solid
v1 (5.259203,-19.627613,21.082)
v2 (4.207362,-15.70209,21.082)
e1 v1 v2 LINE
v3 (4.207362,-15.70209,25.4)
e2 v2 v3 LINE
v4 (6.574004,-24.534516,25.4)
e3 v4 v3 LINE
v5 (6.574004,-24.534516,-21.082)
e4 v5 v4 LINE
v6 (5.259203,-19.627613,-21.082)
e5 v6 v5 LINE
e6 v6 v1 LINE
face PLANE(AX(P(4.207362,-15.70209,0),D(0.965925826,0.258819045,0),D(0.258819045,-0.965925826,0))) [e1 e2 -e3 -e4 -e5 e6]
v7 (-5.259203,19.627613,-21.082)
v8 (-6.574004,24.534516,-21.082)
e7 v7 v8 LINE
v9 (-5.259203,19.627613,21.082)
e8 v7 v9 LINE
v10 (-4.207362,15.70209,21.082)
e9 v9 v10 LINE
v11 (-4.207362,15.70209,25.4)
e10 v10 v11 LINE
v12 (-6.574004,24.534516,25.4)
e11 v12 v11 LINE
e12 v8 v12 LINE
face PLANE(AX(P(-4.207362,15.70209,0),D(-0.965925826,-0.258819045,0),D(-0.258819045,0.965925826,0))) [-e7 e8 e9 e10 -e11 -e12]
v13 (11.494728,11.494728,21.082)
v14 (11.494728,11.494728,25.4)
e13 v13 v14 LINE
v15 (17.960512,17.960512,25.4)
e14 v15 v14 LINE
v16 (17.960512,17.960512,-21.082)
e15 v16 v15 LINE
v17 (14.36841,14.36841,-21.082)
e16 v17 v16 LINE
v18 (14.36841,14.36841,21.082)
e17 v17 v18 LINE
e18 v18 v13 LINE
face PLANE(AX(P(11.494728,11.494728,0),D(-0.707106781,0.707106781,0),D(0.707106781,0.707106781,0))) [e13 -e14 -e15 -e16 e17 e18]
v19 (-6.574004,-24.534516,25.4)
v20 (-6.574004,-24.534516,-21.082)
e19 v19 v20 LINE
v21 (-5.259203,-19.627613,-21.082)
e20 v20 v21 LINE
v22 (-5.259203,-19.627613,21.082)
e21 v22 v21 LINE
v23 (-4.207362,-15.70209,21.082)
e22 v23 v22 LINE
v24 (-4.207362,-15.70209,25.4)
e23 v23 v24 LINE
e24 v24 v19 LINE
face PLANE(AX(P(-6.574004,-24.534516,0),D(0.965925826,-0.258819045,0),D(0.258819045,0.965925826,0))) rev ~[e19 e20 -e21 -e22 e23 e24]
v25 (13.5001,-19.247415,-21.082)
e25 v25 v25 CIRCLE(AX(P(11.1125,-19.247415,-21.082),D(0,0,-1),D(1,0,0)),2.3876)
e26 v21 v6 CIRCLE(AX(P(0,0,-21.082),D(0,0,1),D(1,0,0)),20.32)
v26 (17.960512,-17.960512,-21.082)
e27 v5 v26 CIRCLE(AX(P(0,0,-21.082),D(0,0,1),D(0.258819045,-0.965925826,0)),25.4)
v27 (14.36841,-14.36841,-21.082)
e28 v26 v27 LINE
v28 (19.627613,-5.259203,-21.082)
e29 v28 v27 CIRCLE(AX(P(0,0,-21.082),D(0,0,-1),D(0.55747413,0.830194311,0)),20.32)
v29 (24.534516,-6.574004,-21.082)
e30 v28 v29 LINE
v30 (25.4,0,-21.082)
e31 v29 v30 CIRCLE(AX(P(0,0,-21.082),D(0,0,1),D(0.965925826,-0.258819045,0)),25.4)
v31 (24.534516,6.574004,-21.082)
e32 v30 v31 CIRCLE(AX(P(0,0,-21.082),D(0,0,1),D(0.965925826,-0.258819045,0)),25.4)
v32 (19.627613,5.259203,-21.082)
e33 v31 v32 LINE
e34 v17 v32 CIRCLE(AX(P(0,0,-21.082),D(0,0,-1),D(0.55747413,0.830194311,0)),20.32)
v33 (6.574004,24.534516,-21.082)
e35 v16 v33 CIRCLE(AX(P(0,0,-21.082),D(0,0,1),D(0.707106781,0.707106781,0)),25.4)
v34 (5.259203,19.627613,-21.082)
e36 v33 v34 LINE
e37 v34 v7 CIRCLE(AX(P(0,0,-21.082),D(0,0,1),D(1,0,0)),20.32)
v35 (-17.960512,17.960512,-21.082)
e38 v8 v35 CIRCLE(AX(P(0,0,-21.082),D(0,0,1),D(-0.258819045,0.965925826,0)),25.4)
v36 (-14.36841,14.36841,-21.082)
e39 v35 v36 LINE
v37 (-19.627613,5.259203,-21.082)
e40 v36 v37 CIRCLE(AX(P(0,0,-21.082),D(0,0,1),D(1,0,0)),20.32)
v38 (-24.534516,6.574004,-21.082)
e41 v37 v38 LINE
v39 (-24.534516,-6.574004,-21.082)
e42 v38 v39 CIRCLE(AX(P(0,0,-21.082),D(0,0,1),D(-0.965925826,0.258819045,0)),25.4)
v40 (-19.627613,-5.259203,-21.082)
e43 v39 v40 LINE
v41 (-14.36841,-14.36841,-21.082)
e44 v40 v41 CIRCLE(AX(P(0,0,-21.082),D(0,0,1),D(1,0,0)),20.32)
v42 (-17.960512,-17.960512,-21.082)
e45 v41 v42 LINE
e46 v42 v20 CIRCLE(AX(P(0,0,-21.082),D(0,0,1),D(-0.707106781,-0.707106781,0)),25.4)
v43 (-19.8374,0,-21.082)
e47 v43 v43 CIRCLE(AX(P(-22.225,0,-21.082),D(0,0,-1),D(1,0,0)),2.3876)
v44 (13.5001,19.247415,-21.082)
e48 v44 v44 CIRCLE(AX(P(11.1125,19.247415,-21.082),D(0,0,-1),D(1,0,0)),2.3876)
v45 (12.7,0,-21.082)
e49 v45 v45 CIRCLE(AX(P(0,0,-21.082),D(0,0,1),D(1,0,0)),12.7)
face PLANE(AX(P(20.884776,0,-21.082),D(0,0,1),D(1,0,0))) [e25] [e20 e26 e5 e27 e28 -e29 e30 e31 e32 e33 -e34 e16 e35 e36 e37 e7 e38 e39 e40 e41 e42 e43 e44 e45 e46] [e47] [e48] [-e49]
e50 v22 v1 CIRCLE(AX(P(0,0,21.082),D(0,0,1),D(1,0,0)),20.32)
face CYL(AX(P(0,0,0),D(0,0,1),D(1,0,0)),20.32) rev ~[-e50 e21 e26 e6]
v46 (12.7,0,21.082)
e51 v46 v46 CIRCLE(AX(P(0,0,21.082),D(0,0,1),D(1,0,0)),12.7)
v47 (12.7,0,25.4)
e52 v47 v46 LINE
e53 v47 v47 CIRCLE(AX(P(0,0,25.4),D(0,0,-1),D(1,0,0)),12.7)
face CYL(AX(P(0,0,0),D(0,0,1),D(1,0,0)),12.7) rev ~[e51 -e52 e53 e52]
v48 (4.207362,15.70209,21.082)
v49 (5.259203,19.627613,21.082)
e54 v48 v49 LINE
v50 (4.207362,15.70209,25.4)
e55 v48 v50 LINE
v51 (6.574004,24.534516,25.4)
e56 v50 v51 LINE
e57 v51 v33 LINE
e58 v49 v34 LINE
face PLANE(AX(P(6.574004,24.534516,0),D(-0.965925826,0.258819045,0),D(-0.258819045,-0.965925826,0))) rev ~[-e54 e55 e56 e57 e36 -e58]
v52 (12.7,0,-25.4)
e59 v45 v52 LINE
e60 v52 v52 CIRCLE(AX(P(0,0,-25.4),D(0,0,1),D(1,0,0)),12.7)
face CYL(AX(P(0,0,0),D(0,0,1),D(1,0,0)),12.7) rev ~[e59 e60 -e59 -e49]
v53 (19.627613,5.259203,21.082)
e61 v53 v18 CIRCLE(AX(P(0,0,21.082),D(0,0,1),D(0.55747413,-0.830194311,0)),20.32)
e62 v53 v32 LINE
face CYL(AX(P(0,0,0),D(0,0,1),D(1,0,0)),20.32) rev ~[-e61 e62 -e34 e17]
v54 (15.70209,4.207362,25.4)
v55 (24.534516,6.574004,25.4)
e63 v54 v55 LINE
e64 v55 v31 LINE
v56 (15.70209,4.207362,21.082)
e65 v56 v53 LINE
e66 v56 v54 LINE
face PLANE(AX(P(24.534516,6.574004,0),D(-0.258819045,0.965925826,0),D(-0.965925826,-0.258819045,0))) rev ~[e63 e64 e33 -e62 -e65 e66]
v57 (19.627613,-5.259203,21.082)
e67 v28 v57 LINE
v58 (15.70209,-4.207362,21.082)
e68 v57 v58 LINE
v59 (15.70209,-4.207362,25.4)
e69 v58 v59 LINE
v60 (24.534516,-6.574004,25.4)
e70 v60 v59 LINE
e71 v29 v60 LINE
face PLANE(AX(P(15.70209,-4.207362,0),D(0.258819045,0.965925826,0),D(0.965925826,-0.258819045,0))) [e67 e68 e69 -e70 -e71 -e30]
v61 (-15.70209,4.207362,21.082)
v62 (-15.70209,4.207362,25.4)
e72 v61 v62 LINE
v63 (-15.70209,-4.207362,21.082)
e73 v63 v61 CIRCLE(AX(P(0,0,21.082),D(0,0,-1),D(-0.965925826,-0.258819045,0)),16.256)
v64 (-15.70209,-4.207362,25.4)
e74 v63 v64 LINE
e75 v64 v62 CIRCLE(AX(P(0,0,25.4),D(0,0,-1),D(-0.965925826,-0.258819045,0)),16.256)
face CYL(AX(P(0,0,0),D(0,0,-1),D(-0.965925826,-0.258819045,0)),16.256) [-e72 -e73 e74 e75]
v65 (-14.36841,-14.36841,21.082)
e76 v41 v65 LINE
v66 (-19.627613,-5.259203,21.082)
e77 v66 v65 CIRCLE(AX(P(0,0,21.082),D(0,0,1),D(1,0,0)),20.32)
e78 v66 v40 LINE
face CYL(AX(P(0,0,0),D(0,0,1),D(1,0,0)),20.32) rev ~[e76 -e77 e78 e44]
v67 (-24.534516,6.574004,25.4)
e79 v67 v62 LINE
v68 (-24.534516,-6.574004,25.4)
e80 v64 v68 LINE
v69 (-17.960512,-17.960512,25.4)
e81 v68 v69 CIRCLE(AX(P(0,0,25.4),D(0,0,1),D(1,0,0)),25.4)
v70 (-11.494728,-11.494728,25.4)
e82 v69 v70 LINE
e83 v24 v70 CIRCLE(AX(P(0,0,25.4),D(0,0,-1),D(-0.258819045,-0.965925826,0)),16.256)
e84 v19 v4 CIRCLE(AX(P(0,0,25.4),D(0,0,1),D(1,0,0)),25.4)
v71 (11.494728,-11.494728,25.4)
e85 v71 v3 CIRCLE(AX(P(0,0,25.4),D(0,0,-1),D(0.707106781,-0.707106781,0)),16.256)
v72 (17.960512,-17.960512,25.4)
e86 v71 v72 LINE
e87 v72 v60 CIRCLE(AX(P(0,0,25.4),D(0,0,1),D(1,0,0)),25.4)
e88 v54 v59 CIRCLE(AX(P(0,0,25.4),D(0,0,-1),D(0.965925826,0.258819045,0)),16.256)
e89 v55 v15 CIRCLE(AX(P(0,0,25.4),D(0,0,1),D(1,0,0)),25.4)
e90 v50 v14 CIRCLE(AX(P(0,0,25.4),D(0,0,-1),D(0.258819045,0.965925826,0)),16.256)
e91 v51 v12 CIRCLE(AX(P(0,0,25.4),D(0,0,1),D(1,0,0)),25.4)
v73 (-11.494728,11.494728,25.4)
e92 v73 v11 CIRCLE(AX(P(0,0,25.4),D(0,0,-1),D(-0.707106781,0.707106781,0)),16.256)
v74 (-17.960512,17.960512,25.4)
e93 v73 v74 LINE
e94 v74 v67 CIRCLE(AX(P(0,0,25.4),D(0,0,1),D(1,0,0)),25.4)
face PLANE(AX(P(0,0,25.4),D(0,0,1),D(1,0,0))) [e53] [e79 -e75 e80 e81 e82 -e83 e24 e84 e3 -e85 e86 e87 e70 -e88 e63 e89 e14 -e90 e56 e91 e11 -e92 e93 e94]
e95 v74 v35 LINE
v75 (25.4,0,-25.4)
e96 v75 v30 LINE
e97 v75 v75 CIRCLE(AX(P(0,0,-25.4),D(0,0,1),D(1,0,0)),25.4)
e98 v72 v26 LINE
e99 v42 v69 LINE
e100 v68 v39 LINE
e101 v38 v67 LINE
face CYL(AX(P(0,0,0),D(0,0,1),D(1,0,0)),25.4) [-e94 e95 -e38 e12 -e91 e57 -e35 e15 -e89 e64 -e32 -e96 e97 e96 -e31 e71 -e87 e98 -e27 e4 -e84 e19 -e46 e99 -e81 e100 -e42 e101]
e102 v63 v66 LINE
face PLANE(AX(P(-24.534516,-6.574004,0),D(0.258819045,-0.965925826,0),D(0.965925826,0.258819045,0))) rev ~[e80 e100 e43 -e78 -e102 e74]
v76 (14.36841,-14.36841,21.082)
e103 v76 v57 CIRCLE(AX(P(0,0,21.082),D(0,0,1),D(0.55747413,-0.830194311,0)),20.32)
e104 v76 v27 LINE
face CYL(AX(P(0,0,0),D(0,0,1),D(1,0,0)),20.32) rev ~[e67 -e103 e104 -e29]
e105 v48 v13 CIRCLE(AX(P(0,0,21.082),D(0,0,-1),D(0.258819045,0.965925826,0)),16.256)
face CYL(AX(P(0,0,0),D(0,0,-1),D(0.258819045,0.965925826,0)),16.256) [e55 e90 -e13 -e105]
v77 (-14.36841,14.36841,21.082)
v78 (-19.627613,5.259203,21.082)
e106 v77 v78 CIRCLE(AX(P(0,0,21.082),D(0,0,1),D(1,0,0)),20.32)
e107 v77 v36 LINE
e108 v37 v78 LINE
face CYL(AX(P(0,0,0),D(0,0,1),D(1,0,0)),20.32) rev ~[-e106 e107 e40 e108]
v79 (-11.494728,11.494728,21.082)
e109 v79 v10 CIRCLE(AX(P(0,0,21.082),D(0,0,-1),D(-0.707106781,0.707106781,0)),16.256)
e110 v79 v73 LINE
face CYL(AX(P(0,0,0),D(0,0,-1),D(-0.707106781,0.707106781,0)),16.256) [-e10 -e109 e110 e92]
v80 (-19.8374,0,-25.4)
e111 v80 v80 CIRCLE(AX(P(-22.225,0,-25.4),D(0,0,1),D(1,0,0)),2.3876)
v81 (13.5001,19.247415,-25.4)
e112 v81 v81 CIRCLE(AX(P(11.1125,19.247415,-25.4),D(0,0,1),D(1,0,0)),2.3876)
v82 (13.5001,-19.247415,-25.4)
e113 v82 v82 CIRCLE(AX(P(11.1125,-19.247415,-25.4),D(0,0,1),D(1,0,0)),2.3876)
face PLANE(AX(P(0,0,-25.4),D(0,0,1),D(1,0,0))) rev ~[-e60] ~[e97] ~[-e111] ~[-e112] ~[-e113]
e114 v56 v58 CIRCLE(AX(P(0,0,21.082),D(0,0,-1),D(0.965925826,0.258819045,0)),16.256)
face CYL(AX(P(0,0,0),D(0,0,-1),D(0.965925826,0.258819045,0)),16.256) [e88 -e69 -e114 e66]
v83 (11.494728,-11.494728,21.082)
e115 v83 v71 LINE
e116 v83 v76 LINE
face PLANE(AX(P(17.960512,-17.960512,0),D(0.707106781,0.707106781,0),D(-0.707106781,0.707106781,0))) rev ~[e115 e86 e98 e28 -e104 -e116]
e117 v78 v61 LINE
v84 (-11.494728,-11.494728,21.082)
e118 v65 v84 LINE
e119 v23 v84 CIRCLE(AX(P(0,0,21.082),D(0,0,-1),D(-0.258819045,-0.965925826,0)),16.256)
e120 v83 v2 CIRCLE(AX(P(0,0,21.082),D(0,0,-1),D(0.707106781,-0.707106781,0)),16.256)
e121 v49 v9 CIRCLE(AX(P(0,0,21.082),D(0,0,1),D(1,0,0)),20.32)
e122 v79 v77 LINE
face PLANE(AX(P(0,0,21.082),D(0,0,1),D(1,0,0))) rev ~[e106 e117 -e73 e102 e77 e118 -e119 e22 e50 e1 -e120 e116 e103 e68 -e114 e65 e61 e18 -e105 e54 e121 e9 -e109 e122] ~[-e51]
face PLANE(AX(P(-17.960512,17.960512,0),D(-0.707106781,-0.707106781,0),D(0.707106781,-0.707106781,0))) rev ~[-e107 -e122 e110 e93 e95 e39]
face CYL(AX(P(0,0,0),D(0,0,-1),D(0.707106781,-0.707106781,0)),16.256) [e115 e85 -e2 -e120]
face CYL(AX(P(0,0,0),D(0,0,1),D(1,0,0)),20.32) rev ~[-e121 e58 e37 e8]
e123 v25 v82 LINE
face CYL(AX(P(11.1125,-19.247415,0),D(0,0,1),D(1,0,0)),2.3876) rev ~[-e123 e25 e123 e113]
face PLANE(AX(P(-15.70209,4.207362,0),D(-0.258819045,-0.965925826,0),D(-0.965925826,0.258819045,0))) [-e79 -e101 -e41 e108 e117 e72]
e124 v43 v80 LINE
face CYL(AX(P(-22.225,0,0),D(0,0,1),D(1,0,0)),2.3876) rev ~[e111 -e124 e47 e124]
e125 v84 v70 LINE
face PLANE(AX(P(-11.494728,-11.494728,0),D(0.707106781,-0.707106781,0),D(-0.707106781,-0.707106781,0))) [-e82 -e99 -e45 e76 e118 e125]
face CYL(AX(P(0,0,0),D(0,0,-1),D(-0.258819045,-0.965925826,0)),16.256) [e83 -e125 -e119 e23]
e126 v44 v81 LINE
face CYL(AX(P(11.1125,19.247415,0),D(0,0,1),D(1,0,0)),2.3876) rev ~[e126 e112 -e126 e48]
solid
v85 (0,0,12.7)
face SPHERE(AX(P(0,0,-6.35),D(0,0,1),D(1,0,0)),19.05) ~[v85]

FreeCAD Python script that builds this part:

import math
import FreeCAD as App
import Part
import Sketcher

V = App.Vector
Q = App.Units.Quantity

doc = App.newDocument("Part")
body = doc.addObject("PartDesign::Body", "Body")

sketch1 = body.newObject("Sketcher::SketchObject", "Sketch")
sketch1.AttachmentSupport = (doc.getObject("XY_Plane"), [""])
sketch1.MapMode = "FlatFace"
sketch1.addGeometry(Part.Circle(V(0, 0, 0), V(0, 0, 1), 25), False)
sketch1.addConstraint([
    Sketcher.Constraint("Coincident", 0, 3, -1, 1),
    Sketcher.Constraint("Diameter", 0, Q("2 in")),
])
pad1 = body.newObject("PartDesign::Pad", "Pad")
pad1.Profile = sketch1
pad1.Length = Q("2 in")
pad1.Midplane = True

sketch2 = body.newObject("Sketcher::SketchObject", "Sketch001")
sketch2.AttachmentSupport = (doc.getObject("XY_Plane"), [""])
sketch2.MapMode = "FlatFace"
sketch2.addGeometry(Part.Circle(V(0, 0, 0), V(0, 0, 1), 13), False)
sketch2.addConstraint([
    Sketcher.Constraint("Coincident", 0, 3, -1, 1),
    Sketcher.Constraint("Diameter", 0, Q("1 in")),
])
pocket1 = body.newObject("PartDesign::Pocket", "Pocket")
pocket1.Profile = sketch2
pocket1.Type = "ThroughAll"
pocket1.Midplane = True

sketch3 = body.newObject("Sketcher::SketchObject", "Sketch002")
sketch3.AttachmentSupport = (doc.getObject("XY_Plane"), [""])
sketch3.MapMode = "FlatFace"
sketch3.addGeometry(Part.Circle(V(0, 0, 0), V(0, 0, 1), 20), False)
sketch3.addConstraint([
    Sketcher.Constraint("Coincident", 0, 3, -1, 1),
    Sketcher.Constraint("Diameter", 0, Q("1.6 in")),
])
pocket2 = body.newObject("PartDesign::Pocket", "Pocket001")
pocket2.Profile = sketch3
pocket2.Length = Q("1.66 in")
pocket2.Midplane = True

sketch4 = body.newObject("Sketcher::SketchObject", "Sketch003")
sketch4.AttachmentSupport = (doc.getObject("XY_Plane"), [""])
sketch4.MapMode = "FlatFace"
sketch4.addGeometry([
    Part.Circle(V(-22.2, 0, 0), V(0, 0, 1), 2.4),
    Part.Circle(V(11.1, 19.2, 0), V(0, 0, 1), 2.4),
    Part.Circle(V(11.1, -19.2, 0), V(0, 0, 1), 2.4),
], False)
sketch4.addConstraint([
    Sketcher.Constraint("Equal", 0, 1),
    Sketcher.Constraint("Equal", 1, 2),
    Sketcher.Constraint("Symmetric", 1, 3, 2, 3, -1),
    Sketcher.Constraint("PointOnObject", 0, 3, -1),
    Sketcher.Constraint("Diameter", 0, Q("0.188 in")),
    Sketcher.Constraint("DistanceX", 0, 3, -1, 1, Q("0.875 in")),
    Sketcher.Constraint("DistanceX", -1, 1, 1, 3, Q("0.4375 in")),
    Sketcher.Constraint("DistanceY", 2, 3, 1, 3, 38.494829),
])
pocket3 = body.newObject("PartDesign::Pocket", "Pocket002")
pocket3.Profile = sketch4
pocket3.Type = "ThroughAll"
pocket3.Midplane = True

sketch5 = body.newObject("Sketcher::SketchObject", "Sketch004")
sketch5.AttachmentSupport = (doc.getObject("XY_Plane"), [""])
sketch5.MapMode = "FlatFace"
sketch5.addGeometry([
    Part.LineSegment(V(-16, 4, 0), V(-25, 7, 0)),
    Part.ArcOfCircle(Part.Circle(V(0, 0, 0), V(0, 0, 1), 25), math.radians(165), math.radians(195)),
    Part.LineSegment(V(-25, -7, 0), V(-16, -4, 0)),
    Part.ArcOfCircle(Part.Circle(V(0, 0, 0), V(0, 0, 1), 16), math.radians(165), math.radians(195)),
    Part.ArcOfCircle(Part.Circle(V(0, 0, 0), V(0, 0, 1), 25), math.radians(105), math.radians(135)),
    Part.LineSegment(V(-18, 18, 0), V(-11, 11, 0)),
    Part.ArcOfCircle(Part.Circle(V(0, 0, 0), V(0, 0, 1), 16), math.radians(105), math.radians(135)),
    Part.LineSegment(V(-4, 16, 0), V(-7, 25, 0)),
    Part.LineSegment(V(-11, -11, 0), V(-18, -18, 0)),
    Part.ArcOfCircle(Part.Circle(V(0, 0, 0), V(0, 0, 1), 25), math.radians(-135), math.radians(-105)),
    Part.LineSegment(V(-7, -25, 0), V(-4, -16, 0)),
    Part.ArcOfCircle(Part.Circle(V(0, 0, 0), V(0, 0, 1), 16), math.radians(-135), math.radians(-105)),
    Part.LineSegment(V(11, 11, 0), V(18, 18, 0)),
    Part.ArcOfCircle(Part.Circle(V(0, 0, 0), V(0, 0, 1), 25), math.radians(45), math.radians(75)),
    Part.LineSegment(V(7, 25, 0), V(4, 16, 0)),
    Part.ArcOfCircle(Part.Circle(V(0, 0, 0), V(0, 0, 1), 16), math.radians(45), math.radians(75)),
    Part.ArcOfCircle(Part.Circle(V(0, 0, 0), V(0, 0, 1), 25), math.radians(-15), math.radians(15)),
    Part.LineSegment(V(25, 7, 0), V(16, 4, 0)),
    Part.ArcOfCircle(Part.Circle(V(0, 0, 0), V(0, 0, 1), 16), math.radians(-15), math.radians(15)),
    Part.LineSegment(V(16, -4, 0), V(25, -7, 0)),
    Part.LineSegment(V(18, -18, 0), V(11, -11, 0)),
    Part.ArcOfCircle(Part.Circle(V(0, 0, 0), V(0, 0, 1), 16), math.radians(-75), math.radians(-45)),
    Part.LineSegment(V(4, -16, 0), V(7, -25, 0)),
    Part.ArcOfCircle(Part.Circle(V(0, 0, 0), V(0, 0, 1), 25), math.radians(-75), math.radians(-45)),
], False)
sketch5.addConstraint([
    Sketcher.Constraint("Coincident", 0, 2, 1, 1),
    Sketcher.Constraint("Coincident", 1, 2, 2, 1),
    Sketcher.Constraint("Coincident", 2, 2, 3, 2),
    Sketcher.Constraint("Coincident", 3, 1, 0, 1),
    Sketcher.Constraint("Coincident", 4, 2, 5, 1),
    Sketcher.Constraint("Coincident", 5, 2, 6, 2),
    Sketcher.Constraint("Coincident", 6, 1, 7, 1),
    Sketcher.Constraint("Coincident", 7, 2, 4, 1),
    Sketcher.Constraint("Coincident", 8, 2, 9, 1),
    Sketcher.Constraint("Coincident", 9, 2, 10, 1),
    Sketcher.Constraint("Coincident", 10, 2, 11, 2),
    Sketcher.Constraint("Coincident", 11, 1, 8, 1),
    Sketcher.Constraint("Coincident", 12, 2, 13, 1),
    Sketcher.Constraint("Coincident", 13, 2, 14, 1),
    Sketcher.Constraint("Coincident", 14, 2, 15, 2),
    Sketcher.Constraint("Coincident", 15, 1, 12, 1),
    Sketcher.Constraint("Coincident", 16, 2, 17, 1),
    Sketcher.Constraint("Coincident", 17, 2, 18, 2),
    Sketcher.Constraint("Coincident", 18, 1, 19, 1),
    Sketcher.Constraint("Coincident", 19, 2, 16, 1),
    Sketcher.Constraint("Coincident", 20, 2, 21, 2),
    Sketcher.Constraint("Coincident", 21, 1, 22, 1),
    Sketcher.Constraint("Coincident", 22, 2, 23, 1),
    Sketcher.Constraint("Coincident", 23, 2, 20, 1),
    Sketcher.Constraint("Coincident", 1, 3, -1, 1),
    Sketcher.Constraint("Coincident", 3, 3, -1, 1),
    Sketcher.Constraint("Coincident", 4, 3, -1, 1),
    Sketcher.Constraint("Coincident", 6, 3, -1, 1),
    Sketcher.Constraint("Coincident", 9, 3, -1, 1),
    Sketcher.Constraint("Coincident", 11, 3, -1, 1),
    Sketcher.Constraint("Coincident", 13, 3, -1, 1),
    Sketcher.Constraint("Coincident", 15, 3, -1, 1),
    Sketcher.Constraint("Coincident", 16, 3, -1, 1),
    Sketcher.Constraint("Coincident", 18, 3, -1, 1),
    Sketcher.Constraint("Coincident", 21, 3, -1, 1),
    Sketcher.Constraint("Coincident", 23, 3, -1, 1),
    Sketcher.Constraint("Equal", 1, 4),
    Sketcher.Constraint("Equal", 3, 6),
    Sketcher.Constraint("Equal", 4, 9),
    Sketcher.Constraint("Equal", 6, 11),
    Sketcher.Constraint("Equal", 9, 13),
    Sketcher.Constraint("Equal", 11, 15),
    Sketcher.Constraint("Equal", 13, 16),
    Sketcher.Constraint("Equal", 15, 18),
    Sketcher.Constraint("Equal", 18, 21),
    Sketcher.Constraint("Equal", 16, 23),
    Sketcher.Constraint("Perpendicular", 2, 7),
    Sketcher.Constraint("Perpendicular", 5, 8),
    Sketcher.Constraint("Perpendicular", 0, 10),
    Sketcher.Constraint("Parallel", 8, 12),
    Sketcher.Constraint("Parallel", 10, 14),
    Sketcher.Constraint("Perpendicular", 7, 17),
    Sketcher.Constraint("Perpendicular", 14, 19),
    Sketcher.Constraint("Perpendicular", 12, 20),
    Sketcher.Constraint("Perpendicular", 17, 22),
    Sketcher.Constraint("Horizontal", 4, 2, 12, 2),
    Sketcher.Constraint("Horizontal", 7, 2, 13, 2),
    Sketcher.Constraint("Horizontal", 6, 1, 14, 2),
    Sketcher.Constraint("Horizontal", 5, 2, 15, 1),
    Sketcher.Constraint("Horizontal", 0, 2, 16, 2),
    Sketcher.Constraint("Horizontal", 2, 2, 18, 1),
    Sketcher.Constraint("Horizontal", 11, 1, 20, 2),
    Sketcher.Constraint("Horizontal", 10, 2, 21, 1),
    Sketcher.Constraint("Vertical", 0, 2, 1, 2),
    Sketcher.Constraint("Vertical", 4, 2, 8, 2),
    Sketcher.Constraint("Vertical", 7, 2, 9, 2),
    Sketcher.Constraint("Radius", 1, Q("1 in")),
    Sketcher.Constraint("Radius", 3, Q("0.64 in")),
    Sketcher.Constraint("Angle", 0, Q("165 deg")),
    Sketcher.Constraint("DistanceX", 2, 2, -1, 1, 15.70209),
    Sketcher.Constraint("DistanceY", -1, 1, 6, 1, 15.70209),
    Sketcher.Constraint("DistanceY", 0, 2, 4, 2, 11.386508),
])
pocket4 = body.newObject("PartDesign::Pocket", "Pocket003")
pocket4.Profile = sketch5
pocket4.Type = "TwoLengths"
pocket4.Length = 25.401
pocket4.Length2 = Q("0.83 in")
pocket4.Reversed = True
body2 = doc.addObject("PartDesign::Body", "Body001")

sketch6 = body2.newObject("Sketcher::SketchObject", "Sketch005")
sketch6.AttachmentSupport = (doc.getObject("XZ_Plane001"), [""])
sketch6.MapMode = "FlatFace"
sketch6.addGeometry([
    Part.ArcOfCircle(Part.Circle(V(0, -6, 0), V(0, 0, 1), 19), math.radians(-90), math.radians(90)),
    Part.LineSegment(V(0, 13, 0), V(0, -25, 0)),
], False)
sketch6.addConstraint([
    Sketcher.Constraint("Coincident", 0, 1, 1, 2),
    Sketcher.Constraint("Coincident", 1, 1, 0, 2),
    Sketcher.Constraint("Vertical", 1),
    Sketcher.Constraint("PointOnObject", 0, 3, -2),
    Sketcher.Constraint("PointOnObject", 0, 1, -2),
    Sketcher.Constraint("Radius", 0, Q("0.75 in")),
    Sketcher.Constraint("DistanceY", 0, 1, -1, 1, Q("1 in")),
])
revolution = body2.newObject("PartDesign::Revolution", "Revolution")
revolution.Profile = sketch6
revolution.ReferenceAxis = (sketch6, ["V_Axis"])
revolution.Angle = 360

doc.recompute()
